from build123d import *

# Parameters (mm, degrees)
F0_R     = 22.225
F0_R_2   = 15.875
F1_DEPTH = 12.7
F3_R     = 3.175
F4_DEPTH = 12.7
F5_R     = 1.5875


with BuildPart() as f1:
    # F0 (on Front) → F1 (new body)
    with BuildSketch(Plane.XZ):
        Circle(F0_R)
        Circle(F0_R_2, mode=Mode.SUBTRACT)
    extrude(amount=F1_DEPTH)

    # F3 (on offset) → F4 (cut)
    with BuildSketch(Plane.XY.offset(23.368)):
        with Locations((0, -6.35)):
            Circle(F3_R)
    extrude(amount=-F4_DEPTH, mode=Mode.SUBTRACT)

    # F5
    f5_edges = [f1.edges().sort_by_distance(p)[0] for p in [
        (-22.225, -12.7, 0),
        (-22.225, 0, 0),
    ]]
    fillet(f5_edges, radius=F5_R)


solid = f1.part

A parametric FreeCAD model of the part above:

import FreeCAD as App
import Part
import Sketcher

V = App.Vector
Q = App.Units.Quantity


def edges_at(feature, points):
    """Names of the edges that pass closest to the given points."""
    edges = feature.Shape.Edges
    near = lambda p: min(range(len(edges)), key=lambda i: edges[i].distToShape(Part.Vertex(*p))[0])
    return sorted({f"Edge{near(p) + 1}" for p in points})

doc = App.newDocument("Part")
body = doc.addObject("PartDesign::Body", "Body")

# Sketch on XZ plane
sketch1 = body.newObject("Sketcher::SketchObject", "Sketch")
sketch1.AttachmentSupport = (doc.getObject("XZ_Plane"), [""])
sketch1.MapMode = "FlatFace"
sketch1.addGeometry([
    Part.Circle(V(0, 0, 0), V(0, 0, 1), 22),
    Part.Circle(V(0, 0, 0), V(0, 0, 1), 16),
], False)
sketch1.addConstraint([
    Sketcher.Constraint("Coincident", 0, 3, -1, 1),
    Sketcher.Constraint("Coincident", 1, 3, -1, 1),
    Sketcher.Constraint("Diameter", 0, Q("1.75 in")),
    Sketcher.Constraint("Diameter", 1, Q("1.25 in")),
])
pad1 = body.newObject("PartDesign::Pad", "Pad")
pad1.Profile = sketch1
pad1.Length = Q("0.5 in")

# Sketch on XY plane
sketch2 = body.newObject("Sketcher::SketchObject", "Sketch001")
sketch2.AttachmentSupport = (doc.getObject("XY_Plane"), [""])
sketch2.MapMode = "FlatFace"
sketch2.AttachmentOffset = App.Placement(V(0, 0, 0.92 * 25.4), App.Rotation())
sketch2.addGeometry(Part.Circle(V(0, -6.3, 0), V(0, 0, 1), 3.2), False)
sketch2.addConstraint([
    Sketcher.Constraint("PointOnObject", 0, 3, -2),
    Sketcher.Constraint("Diameter", 0, Q("0.25 in")),
    Sketcher.Constraint("DistanceY", 0, 3, -1, 1, Q("0.25 in")),
])
pocket1 = body.newObject("PartDesign::Pocket", "Pocket")
pocket1.Profile = sketch2
pocket1.Length = Q("0.5 in")
doc.recompute()

fillet = body.newObject("PartDesign::Fillet", "Fillet")
fillet.Base = (pocket1, edges_at(pocket1, [(-22.225, -12.7, 0), (-22.225, 0, 0)]))
fillet.Radius = Q("0.0625 in")

doc.recompute()
